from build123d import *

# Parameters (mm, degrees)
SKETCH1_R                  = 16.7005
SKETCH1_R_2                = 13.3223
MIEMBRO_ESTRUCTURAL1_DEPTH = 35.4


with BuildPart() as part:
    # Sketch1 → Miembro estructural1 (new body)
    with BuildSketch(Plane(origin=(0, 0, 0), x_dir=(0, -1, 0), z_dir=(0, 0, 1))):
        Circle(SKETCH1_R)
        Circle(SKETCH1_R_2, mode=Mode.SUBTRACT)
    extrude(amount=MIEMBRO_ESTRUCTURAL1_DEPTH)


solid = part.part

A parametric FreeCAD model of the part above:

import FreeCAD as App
import Part
import Sketcher

V = App.Vector
Q = App.Units.Quantity

doc = App.newDocument("Part")
params = doc.addObject("Spreadsheet::Sheet", "Params")
for row, (alias, value) in enumerate([
    ("sketch1_diameter", "1.315 in"),
    ("sketch1_diameter2", "1.049 in"),
    ("pad1_length", "35.4 mm"),
], start=1):
    params.set(f"A{row}", alias)
    params.set(f"B{row}", "=" + value)
    params.setAlias(f"B{row}", alias)

body = doc.addObject("PartDesign::Body", "Body")

# Sketch on XY plane
sketch1 = body.newObject("Sketcher::SketchObject", "Sketch")
sketch1.AttachmentSupport = (doc.getObject("XY_Plane"), [""])
sketch1.MapMode = "FlatFace"
sketch1.addGeometry([
    Part.Circle(V(0, 0, 0), V(0, 0, 1), 17),
    Part.Circle(V(0, 0, 0), V(0, 0, 1), 13),
], False)
sketch1.addConstraint([
    Sketcher.Constraint("Coincident", 0, 3, -1, 1),
    Sketcher.Constraint("Coincident", 1, 3, -1, 1),
    Sketcher.Constraint("Diameter", 0, Q("1.315 in")),
    Sketcher.Constraint("Diameter", 1, Q("1.049 in")),
])
sketch1.setExpression("Constraints[2]", "Params.sketch1_diameter")
sketch1.setExpression("Constraints[3]", "Params.sketch1_diameter2")
pad1 = body.newObject("PartDesign::Pad", "Pad")
pad1.Profile = sketch1
pad1.setExpression("Length", "Params.pad1_length")

doc.recompute()
